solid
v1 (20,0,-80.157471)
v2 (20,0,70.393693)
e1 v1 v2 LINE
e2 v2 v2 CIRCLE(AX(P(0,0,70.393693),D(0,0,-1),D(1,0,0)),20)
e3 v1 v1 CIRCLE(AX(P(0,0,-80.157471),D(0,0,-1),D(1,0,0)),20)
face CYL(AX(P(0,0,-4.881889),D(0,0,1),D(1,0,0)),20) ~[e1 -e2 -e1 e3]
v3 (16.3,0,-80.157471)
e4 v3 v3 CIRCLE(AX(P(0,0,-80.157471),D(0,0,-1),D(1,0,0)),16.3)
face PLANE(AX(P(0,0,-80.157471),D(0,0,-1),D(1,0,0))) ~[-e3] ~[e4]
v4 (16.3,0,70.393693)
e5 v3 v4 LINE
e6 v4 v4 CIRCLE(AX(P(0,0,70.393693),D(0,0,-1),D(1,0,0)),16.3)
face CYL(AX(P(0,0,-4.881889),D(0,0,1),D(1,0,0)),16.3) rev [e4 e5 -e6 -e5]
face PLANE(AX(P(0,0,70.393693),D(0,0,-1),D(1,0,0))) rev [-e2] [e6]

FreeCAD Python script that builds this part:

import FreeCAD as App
import Part
import Sketcher

V = App.Vector
Q = App.Units.Quantity


def faces_at(feature, points):
    """Names of the faces that lie closest to the given points."""
    faces = feature.Shape.Faces
    near = lambda p: min(range(len(faces)), key=lambda i: faces[i].distToShape(Part.Vertex(*p))[0])
    return sorted({f"Face{near(p) + 1}" for p in points})


def add_polygon(sketch, points):
    """Adds a closed chain of lines whose ends are joined by coincident constraints."""
    first, n = sketch.GeometryCount, len(points)
    for a, b in zip(points, points[1:] + points[:1]):
        sketch.addGeometry(Part.LineSegment(App.Vector(*a, 0), App.Vector(*b, 0)), False)
    for i in range(n):
        sketch.addConstraint(Sketcher.Constraint("Coincident", first + i, 2, first + (i + 1) % n, 1))

doc = App.newDocument("Part")
body = doc.addObject("PartDesign::Body", "Body")

# Sketch on XZ plane
sketch1 = body.newObject("Sketcher::SketchObject", "Sketch")
sketch1.AttachmentSupport = (doc.getObject("XZ_Plane"), [""])
sketch1.MapMode = "FlatFace"
add_polygon(sketch1, [(0, 70.393693), (0, -80.157471), (20, -80.157471), (20, 70.393693)])  # lines 0-3
sketch1.addConstraint([
    Sketcher.Constraint("Vertical", 0),
    Sketcher.Constraint("Horizontal", 1),
    Sketcher.Constraint("Vertical", 2),
    Sketcher.Constraint("Horizontal", 3),
    Sketcher.Constraint("PointOnObject", 0, 2, -2),
    Sketcher.Constraint("DistanceX", 1, 1, 1, 2, Q("20 mm")),
    Sketcher.Constraint("DistanceY", 0, 2, 0, 1, Q("150.551164 mm")),
    Sketcher.Constraint("DistanceY", 0, 2, -1, 1, Q("80.157471 mm")),
])
revolution = body.newObject("PartDesign::Revolution", "Revolution")
revolution.Profile = sketch1
revolution.ReferenceAxis = (sketch1, ["V_Axis"])
revolution.Angle = 360
doc.recompute()

thickness = body.newObject("PartDesign::Thickness", "Thickness")
thickness.Base = (revolution, faces_at(revolution, [(0, 0, -80.157), (0, 0, 70.394)]))
thickness.Value = 3.7
thickness.Reversed = True
thickness.Join = "Arc"

doc.recompute()
